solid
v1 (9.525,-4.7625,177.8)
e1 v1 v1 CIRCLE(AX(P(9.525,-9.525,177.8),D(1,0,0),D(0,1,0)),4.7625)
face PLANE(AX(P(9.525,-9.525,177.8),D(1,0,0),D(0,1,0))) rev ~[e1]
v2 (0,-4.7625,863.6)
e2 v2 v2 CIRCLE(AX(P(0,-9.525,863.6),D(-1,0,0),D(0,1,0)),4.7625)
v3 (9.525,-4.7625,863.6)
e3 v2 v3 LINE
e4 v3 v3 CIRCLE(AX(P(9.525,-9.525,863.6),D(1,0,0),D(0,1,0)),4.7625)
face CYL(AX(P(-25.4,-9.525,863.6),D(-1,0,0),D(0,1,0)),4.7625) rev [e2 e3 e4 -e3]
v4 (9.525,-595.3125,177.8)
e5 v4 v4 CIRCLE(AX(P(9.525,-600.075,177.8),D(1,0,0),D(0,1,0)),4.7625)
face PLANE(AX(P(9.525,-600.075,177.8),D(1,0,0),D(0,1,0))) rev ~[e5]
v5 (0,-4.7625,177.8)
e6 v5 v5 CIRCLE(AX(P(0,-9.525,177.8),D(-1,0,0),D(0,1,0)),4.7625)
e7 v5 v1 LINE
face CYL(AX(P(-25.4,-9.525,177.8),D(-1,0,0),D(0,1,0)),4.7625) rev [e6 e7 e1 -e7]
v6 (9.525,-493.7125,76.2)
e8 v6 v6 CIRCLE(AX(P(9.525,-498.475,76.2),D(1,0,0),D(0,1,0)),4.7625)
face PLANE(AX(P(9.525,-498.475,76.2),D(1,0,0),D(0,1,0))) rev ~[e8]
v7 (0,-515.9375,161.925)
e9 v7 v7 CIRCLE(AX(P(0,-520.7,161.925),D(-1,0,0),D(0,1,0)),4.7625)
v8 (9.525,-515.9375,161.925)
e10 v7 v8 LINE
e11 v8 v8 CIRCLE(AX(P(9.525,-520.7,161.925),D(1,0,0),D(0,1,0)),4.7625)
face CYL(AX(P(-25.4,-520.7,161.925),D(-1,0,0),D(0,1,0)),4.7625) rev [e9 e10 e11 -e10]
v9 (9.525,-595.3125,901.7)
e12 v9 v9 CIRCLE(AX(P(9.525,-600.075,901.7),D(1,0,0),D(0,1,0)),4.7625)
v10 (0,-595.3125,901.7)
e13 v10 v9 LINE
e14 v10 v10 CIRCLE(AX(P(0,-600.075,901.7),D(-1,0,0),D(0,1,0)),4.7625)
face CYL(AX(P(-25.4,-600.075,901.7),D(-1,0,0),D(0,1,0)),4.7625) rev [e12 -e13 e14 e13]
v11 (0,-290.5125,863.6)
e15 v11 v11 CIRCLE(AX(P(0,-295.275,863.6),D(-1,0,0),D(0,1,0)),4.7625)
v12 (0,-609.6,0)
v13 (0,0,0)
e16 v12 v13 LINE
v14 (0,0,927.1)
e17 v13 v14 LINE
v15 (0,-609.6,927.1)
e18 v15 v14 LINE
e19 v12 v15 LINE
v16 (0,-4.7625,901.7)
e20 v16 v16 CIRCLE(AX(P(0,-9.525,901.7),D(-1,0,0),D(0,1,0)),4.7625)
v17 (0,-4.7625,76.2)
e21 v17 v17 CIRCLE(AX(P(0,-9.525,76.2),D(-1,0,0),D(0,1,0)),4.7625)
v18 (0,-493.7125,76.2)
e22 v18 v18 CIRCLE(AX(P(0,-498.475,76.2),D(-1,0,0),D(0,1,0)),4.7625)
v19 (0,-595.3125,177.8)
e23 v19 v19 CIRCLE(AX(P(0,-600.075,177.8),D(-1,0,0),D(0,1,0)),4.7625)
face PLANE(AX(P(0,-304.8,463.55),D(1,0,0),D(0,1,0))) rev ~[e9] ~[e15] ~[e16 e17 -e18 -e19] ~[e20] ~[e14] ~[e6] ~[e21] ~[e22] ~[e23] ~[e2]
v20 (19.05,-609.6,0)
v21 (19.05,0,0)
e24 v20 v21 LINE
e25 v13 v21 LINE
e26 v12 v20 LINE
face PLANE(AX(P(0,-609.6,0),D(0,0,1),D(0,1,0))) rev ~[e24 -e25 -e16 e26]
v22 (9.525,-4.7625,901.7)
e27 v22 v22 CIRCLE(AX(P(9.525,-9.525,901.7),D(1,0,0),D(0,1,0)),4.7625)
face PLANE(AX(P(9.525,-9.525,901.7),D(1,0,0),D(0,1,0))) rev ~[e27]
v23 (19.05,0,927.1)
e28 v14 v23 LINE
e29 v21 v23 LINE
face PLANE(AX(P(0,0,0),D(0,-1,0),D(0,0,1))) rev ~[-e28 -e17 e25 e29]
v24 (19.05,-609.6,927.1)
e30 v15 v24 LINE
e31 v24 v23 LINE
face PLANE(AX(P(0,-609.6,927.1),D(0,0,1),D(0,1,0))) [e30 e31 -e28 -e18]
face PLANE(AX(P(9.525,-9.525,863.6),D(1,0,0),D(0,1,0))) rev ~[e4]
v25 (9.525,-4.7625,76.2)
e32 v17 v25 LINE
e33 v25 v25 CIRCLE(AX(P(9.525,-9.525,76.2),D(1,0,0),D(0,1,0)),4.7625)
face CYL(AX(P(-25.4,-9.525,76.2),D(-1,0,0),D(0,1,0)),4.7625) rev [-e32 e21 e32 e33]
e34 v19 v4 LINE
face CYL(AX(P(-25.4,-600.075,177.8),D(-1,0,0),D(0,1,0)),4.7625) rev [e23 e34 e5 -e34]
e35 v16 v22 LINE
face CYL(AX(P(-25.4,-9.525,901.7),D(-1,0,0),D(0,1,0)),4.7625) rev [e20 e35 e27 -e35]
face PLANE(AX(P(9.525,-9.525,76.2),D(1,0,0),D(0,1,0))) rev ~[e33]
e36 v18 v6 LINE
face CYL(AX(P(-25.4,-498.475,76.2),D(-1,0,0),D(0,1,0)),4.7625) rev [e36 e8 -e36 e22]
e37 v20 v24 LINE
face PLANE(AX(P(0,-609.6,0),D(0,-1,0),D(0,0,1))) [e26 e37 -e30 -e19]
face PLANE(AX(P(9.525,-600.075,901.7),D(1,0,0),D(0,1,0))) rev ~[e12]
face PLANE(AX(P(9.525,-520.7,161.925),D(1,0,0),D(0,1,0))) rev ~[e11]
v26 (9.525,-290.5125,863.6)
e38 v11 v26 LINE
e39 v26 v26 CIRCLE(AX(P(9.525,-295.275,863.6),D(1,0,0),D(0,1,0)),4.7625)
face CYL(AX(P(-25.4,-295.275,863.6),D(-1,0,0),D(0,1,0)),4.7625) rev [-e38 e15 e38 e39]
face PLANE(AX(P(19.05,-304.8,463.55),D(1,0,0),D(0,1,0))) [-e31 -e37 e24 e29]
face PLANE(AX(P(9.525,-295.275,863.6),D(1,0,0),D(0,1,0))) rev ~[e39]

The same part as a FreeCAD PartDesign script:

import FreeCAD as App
import Part
import Sketcher
Q = App.Units.Quantity


def add_polygon(sketch, points):
    """Adds a closed chain of lines whose ends are joined by coincident constraints."""
    first, n = sketch.GeometryCount, len(points)
    for a, b in zip(points, points[1:] + points[:1]):
        sketch.addGeometry(Part.LineSegment(App.Vector(*a, 0), App.Vector(*b, 0)), False)
    for i in range(n):
        sketch.addConstraint(Sketcher.Constraint("Coincident", first + i, 2, first + (i + 1) % n, 1))

doc = App.newDocument("Part")
params = doc.addObject("Spreadsheet::Sheet", "Params")
for row, (alias, value) in enumerate([
    ("sketch1_width", "24 in"),
    ("sketch1_height", "36.5 in"),
    ("pad1_length", "0.75 in"),
    ("sketch2_diameter", "0.375 in"),
    ("pocket1_length", "1.375 in"),
], start=1):
    params.set(f"A{row}", alias)
    params.set(f"B{row}", "=" + value)
    params.setAlias(f"B{row}", alias)

body = doc.addObject("PartDesign::Body", "Body")

sketch1 = body.newObject("Sketcher::SketchObject", "Sketch")
sketch1.AttachmentSupport = (doc.getObject("YZ_Plane"), [""])
sketch1.MapMode = "FlatFace"
add_polygon(sketch1, [(-610, 927), (-610, 0), (0, 0), (0, 927)])
sketch1.addConstraint(Sketcher.Constraint("Vertical", 0))
sketch1.addConstraint(Sketcher.Constraint("Horizontal", 1))
sketch1.addConstraint(Sketcher.Constraint("Vertical", 2))
sketch1.addConstraint(Sketcher.Constraint("Horizontal", 3))
sketch1.addConstraint(Sketcher.Constraint("Coincident", 1, 2, -1, 1))
sketch1.addConstraint(Sketcher.Constraint("DistanceX", 1, 1, 1, 2, Q("24 in")))
sketch1.addConstraint(Sketcher.Constraint("DistanceY", 0, 2, 0, 1, Q("36.5 in")))
sketch1.setExpression("Constraints[9]", "Params.sketch1_width")
sketch1.setExpression("Constraints[10]", "Params.sketch1_height")
pad1 = body.newObject("PartDesign::Pad", "Pad")
pad1.Profile = sketch1
pad1.setExpression("Length", "Params.pad1_length")

sketch2 = body.newObject("Sketcher::SketchObject", "Sketch001")
sketch2.AttachmentSupport = (doc.getObject("YZ_Plane"), [""])
sketch2.MapMode = "FlatFace"
sketch2.AttachmentOffset = App.Placement(App.Vector(0, 0, -1 * 25.4), App.Rotation())
sketch2.addGeometry(Part.Circle(App.Vector(-9.5, 76.2, 0), App.Vector(0, 0, 1), 4.8), False)
sketch2.addGeometry(Part.Circle(App.Vector(-600.1, 177.8, 0), App.Vector(0, 0, 1), 4.8), False)
sketch2.addGeometry(Part.Circle(App.Vector(-600.1, 901.7, 0), App.Vector(0, 0, 1), 4.8), False)
sketch2.addGeometry(Part.Circle(App.Vector(-295.3, 1365.2, 0), App.Vector(0, 0, 1), 4.8), False)
sketch2.addGeometry(Part.Circle(App.Vector(-295.3, 2089.2, 0), App.Vector(0, 0, 1), 4.8), False)
sketch2.addGeometry(Part.Circle(App.Vector(-295.3, 863.6, 0), App.Vector(0, 0, 1), 4.8), False)
sketch2.addGeometry(Part.Circle(App.Vector(-9.5, 863.6, 0), App.Vector(0, 0, 1), 4.8), False)
sketch2.addGeometry(Part.Circle(App.Vector(-9.5, 2089.2, 0), App.Vector(0, 0, 1), 4.8), False)
sketch2.addGeometry(Part.Circle(App.Vector(-9.5, 1365.2, 0), App.Vector(0, 0, 1), 4.8), False)
sketch2.addGeometry(Part.Circle(App.Vector(-9.5, 901.7, 0), App.Vector(0, 0, 1), 4.8), False)
sketch2.addGeometry(Part.Circle(App.Vector(-9.5, 177.8, 0), App.Vector(0, 0, 1), 4.8), False)
sketch2.addGeometry(Part.Circle(App.Vector(-498.5, 76.2, 0), App.Vector(0, 0, 1), 4.8), False)
sketch2.addGeometry(Part.Circle(App.Vector(-520.7, 161.9, 0), App.Vector(0, 0, 1), 4.8), False)
sketch2.addConstraint(Sketcher.Constraint("Equal", 0, 1))
sketch2.addConstraint(Sketcher.Constraint("Equal", 1, 2))
sketch2.addConstraint(Sketcher.Constraint("Equal", 2, 3))
sketch2.addConstraint(Sketcher.Constraint("Equal", 3, 4))
sketch2.addConstraint(Sketcher.Constraint("Equal", 4, 5))
sketch2.addConstraint(Sketcher.Constraint("Equal", 5, 6))
sketch2.addConstraint(Sketcher.Constraint("Equal", 6, 7))
sketch2.addConstraint(Sketcher.Constraint("Equal", 7, 8))
sketch2.addConstraint(Sketcher.Constraint("Equal", 8, 9))
sketch2.addConstraint(Sketcher.Constraint("Equal", 9, 10))
sketch2.addConstraint(Sketcher.Constraint("Equal", 10, 11))
sketch2.addConstraint(Sketcher.Constraint("Equal", 11, 12))
sketch2.addConstraint(Sketcher.Constraint("Horizontal", 5, 3, 6, 3))
sketch2.addConstraint(Sketcher.Constraint("Horizontal", 4, 3, 7, 3))
sketch2.addConstraint(Sketcher.Constraint("Horizontal", 3, 3, 8, 3))
sketch2.addConstraint(Sketcher.Constraint("Horizontal", 2, 3, 9, 3))
sketch2.addConstraint(Sketcher.Constraint("Horizontal", 1, 3, 10, 3))
sketch2.addConstraint(Sketcher.Constraint("Horizontal", 0, 3, 11, 3))
sketch2.addConstraint(Sketcher.Constraint("Vertical", 1, 3, 2, 3))
sketch2.addConstraint(Sketcher.Constraint("Vertical", 3, 3, 4, 3))
sketch2.addConstraint(Sketcher.Constraint("Vertical", 4, 3, 5, 3))
sketch2.addConstraint(Sketcher.Constraint("Vertical", 0, 3, 6, 3))
sketch2.addConstraint(Sketcher.Constraint("Vertical", 6, 3, 7, 3))
sketch2.addConstraint(Sketcher.Constraint("Vertical", 7, 3, 8, 3))
sketch2.addConstraint(Sketcher.Constraint("Vertical", 8, 3, 9, 3))
sketch2.addConstraint(Sketcher.Constraint("Vertical", 9, 3, 10, 3))
sketch2.addConstraint(Sketcher.Constraint("Diameter", 0, Q("0.375 in")))
sketch2.addConstraint(Sketcher.Constraint("DistanceY", -1, 1, 0, 3, Q("3 in")))
sketch2.addConstraint(Sketcher.Constraint("DistanceY", -1, 1, 1, 3, Q("7 in")))
sketch2.addConstraint(Sketcher.Constraint("DistanceY", -1, 1, 5, 3, Q("34 in")))
sketch2.addConstraint(Sketcher.Constraint("DistanceX", 2, 3, 3, 3, Q("12 in")))
sketch2.addConstraint(Sketcher.Constraint("DistanceX", 1, 3, 11, 3, Q("4 in")))
sketch2.addConstraint(Sketcher.Constraint("DistanceY", -1, 1, 2, 3, Q("35.5 in")))
sketch2.addConstraint(Sketcher.Constraint("DistanceX", 12, 3, -1, 1, Q("20.5 in")))
sketch2.addConstraint(Sketcher.Constraint("DistanceY", 3, 3, 4, 3, Q("28.5 in")))
sketch2.addConstraint(Sketcher.Constraint("DistanceY", -1, 1, 3, 3, Q("53.75 in")))
sketch2.addConstraint(Sketcher.Constraint("DistanceX", 1, 3, 0, 3, Q("23.25 in")))
sketch2.addConstraint(Sketcher.Constraint("DistanceX", 0, 3, -1, 1, Q("0.375 in")))
sketch2.addConstraint(Sketcher.Constraint("DistanceY", -1, 1, 12, 3, Q("6.375 in")))
sketch2.setExpression("Constraints[26]", "Params.sketch2_diameter")
pocket1 = body.newObject("PartDesign::Pocket", "Pocket")
pocket1.Profile = sketch2
pocket1.setExpression("Length", "Params.pocket1_length")
pocket1.Reversed = True

doc.recompute()
